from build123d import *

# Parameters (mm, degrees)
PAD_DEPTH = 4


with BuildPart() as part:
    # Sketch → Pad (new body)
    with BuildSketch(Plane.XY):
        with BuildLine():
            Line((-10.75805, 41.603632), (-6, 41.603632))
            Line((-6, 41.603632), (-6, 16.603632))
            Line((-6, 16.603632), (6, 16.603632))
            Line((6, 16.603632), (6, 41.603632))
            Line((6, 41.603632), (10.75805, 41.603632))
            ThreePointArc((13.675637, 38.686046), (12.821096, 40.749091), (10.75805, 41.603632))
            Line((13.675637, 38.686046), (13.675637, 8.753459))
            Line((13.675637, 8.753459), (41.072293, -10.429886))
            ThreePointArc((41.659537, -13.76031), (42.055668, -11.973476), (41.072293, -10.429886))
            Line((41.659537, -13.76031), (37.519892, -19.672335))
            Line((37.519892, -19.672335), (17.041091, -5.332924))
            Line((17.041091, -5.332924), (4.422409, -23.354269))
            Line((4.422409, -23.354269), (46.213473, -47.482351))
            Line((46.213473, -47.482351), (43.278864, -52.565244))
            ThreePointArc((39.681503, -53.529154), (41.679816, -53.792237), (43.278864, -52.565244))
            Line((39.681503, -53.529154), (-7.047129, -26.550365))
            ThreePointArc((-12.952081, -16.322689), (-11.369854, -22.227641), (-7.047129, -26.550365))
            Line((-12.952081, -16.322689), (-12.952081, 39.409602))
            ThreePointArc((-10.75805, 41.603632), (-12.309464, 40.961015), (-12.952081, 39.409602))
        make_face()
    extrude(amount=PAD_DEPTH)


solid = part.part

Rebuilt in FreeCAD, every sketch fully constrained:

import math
import FreeCAD as App
import Part
import Sketcher

V = App.Vector
Q = App.Units.Quantity

doc = App.newDocument("Part")
body = doc.addObject("PartDesign::Body", "Body")

# Sketch on XY plane
sketch1 = doc.addObject("Sketcher::SketchObject", "Sketch")
body.addObject(sketch1)
sketch1.AttachmentSupport = (doc.XY_Plane, [""])
sketch1.MapMode = "FlatFace"
sketch1.addGeometry(Part.LineSegment(V(-6, 41.6, 0), V(-10.8, 41.6, 0)), False)
sketch1.addGeometry(Part.ArcOfCircle(Part.Circle(V(-10.8, 39.4, 0), V(0, 0, 1), 2.2), math.radians(90), math.radians(180)), False)
sketch1.addGeometry(Part.LineSegment(V(-13, 39.4, 0), V(-13, -16.3, 0)), False)
sketch1.addGeometry(Part.ArcOfCircle(Part.Circle(V(-1.1, -16.3, 0), V(0, 0, 1), 11.8), math.radians(180), math.radians(240)), False)
sketch1.addGeometry(Part.LineSegment(V(-7, -26.6, 0), V(39.7, -53.5, 0)), False)
sketch1.addGeometry(Part.ArcOfCircle(Part.Circle(V(41, -51.2, 0), V(0, 0, 1), 2.6), math.radians(-120), math.radians(-30)), False)
sketch1.addGeometry(Part.LineSegment(V(43.3, -52.6, 0), V(46.2, -47.5, 0)), False)
sketch1.addGeometry(Part.LineSegment(V(46.2, -47.5, 0), V(4.4, -23.4, 0)), False)
sketch1.addGeometry(Part.LineSegment(V(4.4, -23.4, 0), V(17, -5.3, 0)), False)
sketch1.addGeometry(Part.LineSegment(V(17, -5.3, 0), V(37.5, -19.7, 0)), False)
sketch1.addGeometry(Part.LineSegment(V(37.5, -19.7, 0), V(41.7, -13.8, 0)), False)
sketch1.addGeometry(Part.ArcOfCircle(Part.Circle(V(39.7, -12.4, 0), V(0, 0, 1), 2.4), math.radians(-35), math.radians(55)), False)
sketch1.addGeometry(Part.LineSegment(V(41.1, -10.4, 0), V(13.7, 8.8, 0)), False)
sketch1.addGeometry(Part.LineSegment(V(13.7, 8.8, 0), V(13.7, 38.7, 0)), False)
sketch1.addGeometry(Part.ArcOfCircle(Part.Circle(V(10.8, 38.7, 0), V(0, 0, 1), 2.9), math.radians(0), math.radians(90)), False)
sketch1.addGeometry(Part.LineSegment(V(10.8, 41.6, 0), V(6, 41.6, 0)), False)
sketch1.addGeometry(Part.LineSegment(V(6, 41.6, 0), V(6, 16.6, 0)), False)
sketch1.addGeometry(Part.LineSegment(V(6, 16.6, 0), V(-6, 16.6, 0)), False)
sketch1.addGeometry(Part.LineSegment(V(-6, 16.6, 0), V(-6, 41.6, 0)), False)
sketch1.addConstraint(Sketcher.Constraint("Tangent", 0, 2, 1, 1))
sketch1.addConstraint(Sketcher.Constraint("Tangent", 1, 2, 2, 1))
sketch1.addConstraint(Sketcher.Constraint("Tangent", 2, 2, 3, 1))
sketch1.addConstraint(Sketcher.Constraint("Tangent", 3, 2, 4, 1))
sketch1.addConstraint(Sketcher.Constraint("Tangent", 4, 2, 5, 1))
sketch1.addConstraint(Sketcher.Constraint("Tangent", 5, 2, 6, 1))
sketch1.addConstraint(Sketcher.Constraint("Coincident", 6, 2, 7, 1))
sketch1.addConstraint(Sketcher.Constraint("Coincident", 7, 2, 8, 1))
sketch1.addConstraint(Sketcher.Constraint("Coincident", 8, 2, 9, 1))
sketch1.addConstraint(Sketcher.Constraint("Coincident", 9, 2, 10, 1))
sketch1.addConstraint(Sketcher.Constraint("Tangent", 10, 2, 11, 1))
sketch1.addConstraint(Sketcher.Constraint("Tangent", 11, 2, 12, 1))
sketch1.addConstraint(Sketcher.Constraint("Coincident", 12, 2, 13, 1))
sketch1.addConstraint(Sketcher.Constraint("Tangent", 13, 2, 14, 1))
sketch1.addConstraint(Sketcher.Constraint("Tangent", 14, 2, 15, 1))
sketch1.addConstraint(Sketcher.Constraint("Coincident", 15, 2, 16, 1))
sketch1.addConstraint(Sketcher.Constraint("Coincident", 16, 2, 17, 1))
sketch1.addConstraint(Sketcher.Constraint("Coincident", 17, 2, 18, 1))
sketch1.addConstraint(Sketcher.Constraint("Coincident", 18, 2, 0, 1))
sketch1.addConstraint(Sketcher.Constraint("Horizontal", 0))
sketch1.addConstraint(Sketcher.Constraint("Vertical", 2))
sketch1.addConstraint(Sketcher.Constraint("Vertical", 13))
sketch1.addConstraint(Sketcher.Constraint("Horizontal", 15))
sketch1.addConstraint(Sketcher.Constraint("Vertical", 16))
sketch1.addConstraint(Sketcher.Constraint("Horizontal", 17))
sketch1.addConstraint(Sketcher.Constraint("Vertical", 18))
sketch1.addConstraint(Sketcher.Constraint("Symmetric", 0, 2, 14, 2, -2))
sketch1.addConstraint(Sketcher.Constraint("Perpendicular", 4, 6))
sketch1.addConstraint(Sketcher.Constraint("Perpendicular", 6, 7))
sketch1.addConstraint(Sketcher.Constraint("Perpendicular", 8, 9))
sketch1.addConstraint(Sketcher.Constraint("Perpendicular", 9, 10))
sketch1.addConstraint(Sketcher.Constraint("Perpendicular", 10, 12))
sketch1.addConstraint(Sketcher.Constraint("Equal", 0, 15))
sketch1.addConstraint(Sketcher.Constraint("DistanceX", 17, 2, 17, 1, Q("12 mm")))
sketch1.addConstraint(Sketcher.Constraint("DistanceY", 16, 2, 16, 1, Q("25 mm")))
sketch1.addConstraint(Sketcher.Constraint("Angle", 4, Q("-30.000001 deg")))
sketch1.addConstraint(Sketcher.Constraint("Angle", 8, Q("54.999999 deg")))
sketch1.addConstraint(Sketcher.Constraint("Distance", 8, Q("22 mm")))
sketch1.addConstraint(Sketcher.Constraint("Distance", 9, Q("25 mm")))
sketch1.addConstraint(Sketcher.Constraint("Radius", 3, Q("11.8099 mm")))
sketch1.addConstraint(Sketcher.Constraint("Radius", 1, Q("2.194032 mm")))
sketch1.addConstraint(Sketcher.Constraint("Radius", 5, Q("2.633451 mm")))
sketch1.addConstraint(Sketcher.Constraint("Radius", 11, Q("2.391296 mm")))
sketch1.addConstraint(Sketcher.Constraint("Radius", 14, Q("2.917585 mm")))
sketch1.addConstraint(Sketcher.Constraint("DistanceX", 0, 2, 0, 1, Q("4.75805 mm")))
sketch1.addConstraint(Sketcher.Constraint("DistanceY", 2, 2, 2, 1, Q("55.732291 mm")))
sketch1.addConstraint(Sketcher.Constraint("DistanceY", -1, 1, 1, 3, Q("39.4096 mm")))
sketch1.addConstraint(Sketcher.Constraint("DistanceX", -1, 1, 11, 3, Q("39.700702 mm")))
sketch1.addConstraint(Sketcher.Constraint("DistanceY", 5, 3, 11, 3, Q("38.859799 mm")))
sketch1.addConstraint(Sketcher.Constraint("DistanceX", 4, 2, 11, 3, Q("0.019199 mm")))
sketch1.addConstraint(Sketcher.Constraint("DistanceX", 9, 2, 11, 2, Q("3.552401 mm")))
pad1 = doc.addObject("PartDesign::Pad", "Pad")
body.addObject(pad1)
pad1.Profile = sketch1
pad1.Length = 4

doc.recompute()
